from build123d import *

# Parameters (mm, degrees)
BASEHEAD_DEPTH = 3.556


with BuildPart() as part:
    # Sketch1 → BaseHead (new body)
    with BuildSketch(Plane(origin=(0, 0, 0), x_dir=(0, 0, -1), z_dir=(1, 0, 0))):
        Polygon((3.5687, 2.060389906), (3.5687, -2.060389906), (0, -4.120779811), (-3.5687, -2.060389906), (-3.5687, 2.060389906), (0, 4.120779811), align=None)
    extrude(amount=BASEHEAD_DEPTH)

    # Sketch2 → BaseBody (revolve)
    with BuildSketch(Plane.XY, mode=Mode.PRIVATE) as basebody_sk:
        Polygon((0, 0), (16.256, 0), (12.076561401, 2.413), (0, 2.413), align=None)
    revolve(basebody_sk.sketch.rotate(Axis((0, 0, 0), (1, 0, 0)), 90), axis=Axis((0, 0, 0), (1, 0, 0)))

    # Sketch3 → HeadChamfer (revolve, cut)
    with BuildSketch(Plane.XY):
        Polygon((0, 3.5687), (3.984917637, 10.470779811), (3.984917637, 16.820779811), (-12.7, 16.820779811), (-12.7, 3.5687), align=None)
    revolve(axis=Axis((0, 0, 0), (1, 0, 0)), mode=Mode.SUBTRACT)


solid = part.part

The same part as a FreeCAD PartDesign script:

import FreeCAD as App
import Part
import Sketcher
from FreeCAD import Vector
Q = App.Units.Quantity

doc = App.newDocument("Part")
params = doc.addObject("Spreadsheet::Sheet", "Params")
for row, (alias, value) in enumerate([
    ("pad1_length", "0.14 in"),
    ("sketch2_width", "0.64 in"),
    ("sketch2_length", "0.19 in"),
    ("revolution_angle", "360 deg"),
    ("sketch3_width", "0.5 in"),
    ("sketch3_height", "0.25 in"),
    ("groove_angle", "360 deg"),
], start=1):
    params.set(f"A{row}", alias)
    params.set(f"B{row}", "=" + value)
    params.setAlias(f"B{row}", alias)

body = doc.addObject("PartDesign::Body", "Body")

# Sketch on YZ plane
sketch1 = doc.addObject("Sketcher::SketchObject", "Sketch")
body.addObject(sketch1)
sketch1.AttachmentSupport = (doc.YZ_Plane, [""])
sketch1.MapMode = "FlatFace"
sketch1.addGeometry([
    Part.LineSegment(Vector(-2.1, -3.6, 0), Vector(2.1, -3.6, 0)),  # 0
    Part.LineSegment(Vector(2.1, -3.6, 0), Vector(4.1, 0, 0)),  # 1
    Part.LineSegment(Vector(4.1, 0, 0), Vector(2.1, 3.6, 0)),  # 2
    Part.LineSegment(Vector(2.1, 3.6, 0), Vector(-2.1, 3.6, 0)),  # 3
    Part.LineSegment(Vector(-2.1, 3.6, 0), Vector(-4.1, 0, 0)),  # 4
    Part.LineSegment(Vector(-4.1, 0, 0), Vector(-2.1, -3.6, 0)),  # 5
], False)
sketch1.addConstraint([
    Sketcher.Constraint("Coincident", 0, 2, 1, 1),
    Sketcher.Constraint("Coincident", 1, 2, 2, 1),
    Sketcher.Constraint("Coincident", 2, 2, 3, 1),
    Sketcher.Constraint("Coincident", 3, 2, 4, 1),
    Sketcher.Constraint("Coincident", 4, 2, 5, 1),
    Sketcher.Constraint("Coincident", 5, 2, 0, 1),
    Sketcher.Constraint("Horizontal", 0),
    Sketcher.Constraint("Horizontal", 3),
    Sketcher.Constraint("Symmetric", 0, 2, 3, 2, -1, 1),
    Sketcher.Constraint("Symmetric", 1, 2, 4, 2, -1, 1),
    Sketcher.Constraint("PointOnObject", 1, 2, -1),
    Sketcher.Constraint("Parallel", 2, 5),
    Sketcher.Constraint("Vertical", 0, 2, 2, 2),
    Sketcher.Constraint("Angle", 1, Q("60 deg")),
    Sketcher.Constraint("DistanceY", 0, 2, 2, 2, Q("0.281 in")),
    Sketcher.Constraint("DistanceX", 0, 1, 0, 2, Q("4.12078 mm")),
])
pad1 = doc.addObject("PartDesign::Pad", "Pad")
body.addObject(pad1)
pad1.Profile = sketch1
pad1.setExpression("Length", "Params.pad1_length")

# Sketch on XY plane
sketch2 = doc.addObject("Sketcher::SketchObject", "Sketch001")
body.addObject(sketch2)
sketch2.AttachmentSupport = (doc.XY_Plane, [""])
sketch2.MapMode = "FlatFace"
sketch2.addGeometry([
    Part.LineSegment(Vector(0, 0, 0), Vector(16.3, 0, 0)),
    Part.LineSegment(Vector(16.3, 0, 0), Vector(12.1, 2.4, 0)),
    Part.LineSegment(Vector(12.1, 2.4, 0), Vector(0, 2.4, 0)),
    Part.LineSegment(Vector(0, 2.4, 0), Vector(0, 0, 0)),
], False)
sketch2.addConstraint([
    Sketcher.Constraint("Coincident", 0, 2, 1, 1),
    Sketcher.Constraint("Coincident", 1, 2, 2, 1),
    Sketcher.Constraint("Coincident", 2, 2, 3, 1),
    Sketcher.Constraint("Coincident", 3, 2, 0, 1),
    Sketcher.Constraint("Horizontal", 0),
    Sketcher.Constraint("Horizontal", 2),
    Sketcher.Constraint("Vertical", 3),
    Sketcher.Constraint("Coincident", 3, 2, -1, 1),
    Sketcher.Constraint("Angle", 1, Q("150 deg")),
    Sketcher.Constraint("DistanceX", 0, 1, 0, 2, Q("0.64 in")),
    Sketcher.Constraint("Distance", 1, Q("0.19 in")),
])
sketch2.setExpression("Constraints[9]", "Params.sketch2_width")
sketch2.setExpression("Constraints[10]", "Params.sketch2_length")
revolution = doc.addObject("PartDesign::Revolution", "Revolution")
body.addObject(revolution)
revolution.Profile = sketch2
revolution.ReferenceAxis = (sketch2, ["H_Axis"])
revolution.setExpression("Angle", "Params.revolution_angle")

# Sketch on XY plane
sketch3 = doc.addObject("Sketcher::SketchObject", "Sketch002")
body.addObject(sketch3)
sketch3.AttachmentSupport = (doc.XY_Plane, [""])
sketch3.MapMode = "FlatFace"
sketch3.addGeometry([
    Part.LineSegment(Vector(0, 4, 0), Vector(4, 10, 0)),  # 0
    Part.LineSegment(Vector(4, 10, 0), Vector(4, 17, 0)),  # 1
    Part.LineSegment(Vector(4, 17, 0), Vector(-13, 17, 0)),  # 2
    Part.LineSegment(Vector(-13, 17, 0), Vector(-13, 4, 0)),  # 3
    Part.LineSegment(Vector(-13, 4, 0), Vector(0, 4, 0)),  # 4
], False)
sketch3.addConstraint([
    Sketcher.Constraint("Coincident", 0, 2, 1, 1),
    Sketcher.Constraint("Coincident", 1, 2, 2, 1),
    Sketcher.Constraint("Coincident", 2, 2, 3, 1),
    Sketcher.Constraint("Coincident", 3, 2, 4, 1),
    Sketcher.Constraint("Coincident", 4, 2, 0, 1),
    Sketcher.Constraint("Vertical", 1),
    Sketcher.Constraint("Horizontal", 2),
    Sketcher.Constraint("Vertical", 3),
    Sketcher.Constraint("Horizontal", 4),
    Sketcher.Constraint("PointOnObject", 4, 2, -2),
    Sketcher.Constraint("DistanceX", 4, 1, 4, 2, Q("0.5 in")),
    Sketcher.Constraint("Angle", 0, Q("60 deg")),
    Sketcher.Constraint("DistanceY", 1, 1, 1, 2, Q("0.25 in")),
    Sketcher.Constraint("DistanceY", -1, 1, 3, 2, Q("0.1405 in")),
    Sketcher.Constraint("DistanceY", 3, 2, 3, 1, Q("13.25208 mm")),
])
sketch3.setExpression("Constraints[10]", "Params.sketch3_width")
sketch3.setExpression("Constraints[12]", "Params.sketch3_height")
groove = doc.addObject("PartDesign::Groove", "Groove")
body.addObject(groove)
groove.Profile = sketch3
groove.ReferenceAxis = (sketch3, ["H_Axis"])
groove.setExpression("Angle", "Params.groove_angle")

doc.recompute()
